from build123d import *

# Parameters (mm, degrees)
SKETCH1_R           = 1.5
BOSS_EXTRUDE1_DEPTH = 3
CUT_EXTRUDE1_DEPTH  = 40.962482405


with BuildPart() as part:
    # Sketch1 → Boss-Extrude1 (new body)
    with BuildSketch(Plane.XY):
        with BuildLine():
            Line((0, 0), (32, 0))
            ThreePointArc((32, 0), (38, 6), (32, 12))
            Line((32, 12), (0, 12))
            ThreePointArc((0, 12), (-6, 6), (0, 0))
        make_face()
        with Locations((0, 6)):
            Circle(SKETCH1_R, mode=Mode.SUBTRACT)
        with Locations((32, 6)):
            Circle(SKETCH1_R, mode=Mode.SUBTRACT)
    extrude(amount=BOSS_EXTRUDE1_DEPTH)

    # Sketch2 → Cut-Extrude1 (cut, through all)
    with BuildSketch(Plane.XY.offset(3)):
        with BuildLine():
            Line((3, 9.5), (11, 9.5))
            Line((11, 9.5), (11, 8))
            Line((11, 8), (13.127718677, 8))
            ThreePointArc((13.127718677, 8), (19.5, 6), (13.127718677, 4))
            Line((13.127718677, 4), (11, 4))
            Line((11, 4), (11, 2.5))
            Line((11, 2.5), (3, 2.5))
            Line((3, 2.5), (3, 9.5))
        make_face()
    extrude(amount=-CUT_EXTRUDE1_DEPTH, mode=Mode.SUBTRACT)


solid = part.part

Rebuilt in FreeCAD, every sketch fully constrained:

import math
import FreeCAD as App
import Part
import Sketcher

doc = App.newDocument("Part")
body = doc.addObject("PartDesign::Body", "Body")

sketch1 = body.newObject("Sketcher::SketchObject", "Sketch")
sketch1.AttachmentSupport = (doc.getObject("XY_Plane"), [""])
sketch1.MapMode = "FlatFace"
sketch1.addGeometry(Part.LineSegment(App.Vector(0, 0, 0), App.Vector(32, 0, 0)), False)
sketch1.addGeometry(Part.ArcOfCircle(Part.Circle(App.Vector(32, 6, 0), App.Vector(0, 0, 1), 6), math.radians(-90), math.radians(90)), False)
sketch1.addGeometry(Part.LineSegment(App.Vector(32, 12, 0), App.Vector(0, 12, 0)), False)
sketch1.addGeometry(Part.ArcOfCircle(Part.Circle(App.Vector(0, 6, 0), App.Vector(0, 0, 1), 6), math.radians(90), math.radians(270)), False)
sketch1.addGeometry(Part.Circle(App.Vector(0, 6, 0), App.Vector(0, 0, 1), 1.5), False)
sketch1.addGeometry(Part.Circle(App.Vector(32, 6, 0), App.Vector(0, 0, 1), 1.5), False)
sketch1.addConstraint(Sketcher.Constraint("Tangent", 0, 2, 1, 1))
sketch1.addConstraint(Sketcher.Constraint("Tangent", 1, 2, 2, 1))
sketch1.addConstraint(Sketcher.Constraint("Tangent", 2, 2, 3, 1))
sketch1.addConstraint(Sketcher.Constraint("Tangent", 3, 2, 0, 1))
sketch1.addConstraint(Sketcher.Constraint("Horizontal", 0))
sketch1.addConstraint(Sketcher.Constraint("Horizontal", 2))
sketch1.addConstraint(Sketcher.Constraint("Coincident", 3, 2, -1, 1))
sketch1.addConstraint(Sketcher.Constraint("Coincident", 4, 3, 3, 3))
sketch1.addConstraint(Sketcher.Constraint("Coincident", 5, 3, 1, 3))
sketch1.addConstraint(Sketcher.Constraint("Equal", 4, 5))
sketch1.addConstraint(Sketcher.Constraint("Diameter", 4, 3.0))
sketch1.addConstraint(Sketcher.Constraint("Radius", 1, 6.0))
sketch1.addConstraint(Sketcher.Constraint("DistanceX", 0, 1, 0, 2, 32.0))
pad1 = body.newObject("PartDesign::Pad", "Pad")
pad1.Profile = sketch1
pad1.Length = 3

sketch2 = body.newObject("Sketcher::SketchObject", "Sketch001")
sketch2.AttachmentSupport = (doc.getObject("XY_Plane"), [""])
sketch2.MapMode = "FlatFace"
sketch2.AttachmentOffset = App.Placement(App.Vector(0, 0, 3), App.Rotation())
sketch2.addGeometry(Part.LineSegment(App.Vector(11, 9.5, 0), App.Vector(3, 9.5, 0)), False)
sketch2.addGeometry(Part.LineSegment(App.Vector(3, 9.5, 0), App.Vector(3, 2.5, 0)), False)
sketch2.addGeometry(Part.LineSegment(App.Vector(3, 2.5, 0), App.Vector(11, 2.5, 0)), False)
sketch2.addGeometry(Part.LineSegment(App.Vector(11, 2.5, 0), App.Vector(11, 4, 0)), False)
sketch2.addGeometry(Part.LineSegment(App.Vector(11, 4, 0), App.Vector(13.127719, 4, 0)), False)
sketch2.addGeometry(Part.ArcOfCircle(Part.Circle(App.Vector(16, 6, 0), App.Vector(0, 0, 1), 3.5), math.radians(-145.150095), math.radians(145.150095)), False)
sketch2.addGeometry(Part.LineSegment(App.Vector(13.127719, 8, 0), App.Vector(11, 8, 0)), False)
sketch2.addGeometry(Part.LineSegment(App.Vector(11, 8, 0), App.Vector(11, 9.5, 0)), False)
sketch2.addConstraint(Sketcher.Constraint("Coincident", 0, 2, 1, 1))
sketch2.addConstraint(Sketcher.Constraint("Coincident", 1, 2, 2, 1))
sketch2.addConstraint(Sketcher.Constraint("Coincident", 2, 2, 3, 1))
sketch2.addConstraint(Sketcher.Constraint("Coincident", 3, 2, 4, 1))
sketch2.addConstraint(Sketcher.Constraint("Coincident", 4, 2, 5, 1))
sketch2.addConstraint(Sketcher.Constraint("Coincident", 5, 2, 6, 1))
sketch2.addConstraint(Sketcher.Constraint("Coincident", 6, 2, 7, 1))
sketch2.addConstraint(Sketcher.Constraint("Coincident", 7, 2, 0, 1))
sketch2.addConstraint(Sketcher.Constraint("Horizontal", 0))
sketch2.addConstraint(Sketcher.Constraint("Vertical", 1))
sketch2.addConstraint(Sketcher.Constraint("Horizontal", 2))
sketch2.addConstraint(Sketcher.Constraint("Vertical", 3))
sketch2.addConstraint(Sketcher.Constraint("Horizontal", 4))
sketch2.addConstraint(Sketcher.Constraint("Horizontal", 6))
sketch2.addConstraint(Sketcher.Constraint("Vertical", 7))
sketch2.addConstraint(Sketcher.Constraint("Vertical", 4, 2, 5, 2))
sketch2.addConstraint(Sketcher.Constraint("Vertical", 3, 2, 6, 2))
sketch2.addConstraint(Sketcher.Constraint("Equal", 3, 7))
sketch2.addConstraint(Sketcher.Constraint("Radius", 5, 3.5))
sketch2.addConstraint(Sketcher.Constraint("DistanceX", 0, 2, 0, 1, 8.0))
sketch2.addConstraint(Sketcher.Constraint("DistanceY", 1, 2, 1, 1, 7.0))
sketch2.addConstraint(Sketcher.Constraint("DistanceY", 3, 1, 3, 2, 1.5))
sketch2.addConstraint(Sketcher.Constraint("DistanceX", -1, 1, 5, 3, 16.0))
sketch2.addConstraint(Sketcher.Constraint("DistanceY", -1, 1, 5, 3, 6.0))
sketch2.addConstraint(Sketcher.Constraint("DistanceX", -1, 1, 0, 2, 3.0))
pocket1 = body.newObject("PartDesign::Pocket", "Pocket")
pocket1.Profile = sketch2
pocket1.Type = "ThroughAll"

doc.recompute()
